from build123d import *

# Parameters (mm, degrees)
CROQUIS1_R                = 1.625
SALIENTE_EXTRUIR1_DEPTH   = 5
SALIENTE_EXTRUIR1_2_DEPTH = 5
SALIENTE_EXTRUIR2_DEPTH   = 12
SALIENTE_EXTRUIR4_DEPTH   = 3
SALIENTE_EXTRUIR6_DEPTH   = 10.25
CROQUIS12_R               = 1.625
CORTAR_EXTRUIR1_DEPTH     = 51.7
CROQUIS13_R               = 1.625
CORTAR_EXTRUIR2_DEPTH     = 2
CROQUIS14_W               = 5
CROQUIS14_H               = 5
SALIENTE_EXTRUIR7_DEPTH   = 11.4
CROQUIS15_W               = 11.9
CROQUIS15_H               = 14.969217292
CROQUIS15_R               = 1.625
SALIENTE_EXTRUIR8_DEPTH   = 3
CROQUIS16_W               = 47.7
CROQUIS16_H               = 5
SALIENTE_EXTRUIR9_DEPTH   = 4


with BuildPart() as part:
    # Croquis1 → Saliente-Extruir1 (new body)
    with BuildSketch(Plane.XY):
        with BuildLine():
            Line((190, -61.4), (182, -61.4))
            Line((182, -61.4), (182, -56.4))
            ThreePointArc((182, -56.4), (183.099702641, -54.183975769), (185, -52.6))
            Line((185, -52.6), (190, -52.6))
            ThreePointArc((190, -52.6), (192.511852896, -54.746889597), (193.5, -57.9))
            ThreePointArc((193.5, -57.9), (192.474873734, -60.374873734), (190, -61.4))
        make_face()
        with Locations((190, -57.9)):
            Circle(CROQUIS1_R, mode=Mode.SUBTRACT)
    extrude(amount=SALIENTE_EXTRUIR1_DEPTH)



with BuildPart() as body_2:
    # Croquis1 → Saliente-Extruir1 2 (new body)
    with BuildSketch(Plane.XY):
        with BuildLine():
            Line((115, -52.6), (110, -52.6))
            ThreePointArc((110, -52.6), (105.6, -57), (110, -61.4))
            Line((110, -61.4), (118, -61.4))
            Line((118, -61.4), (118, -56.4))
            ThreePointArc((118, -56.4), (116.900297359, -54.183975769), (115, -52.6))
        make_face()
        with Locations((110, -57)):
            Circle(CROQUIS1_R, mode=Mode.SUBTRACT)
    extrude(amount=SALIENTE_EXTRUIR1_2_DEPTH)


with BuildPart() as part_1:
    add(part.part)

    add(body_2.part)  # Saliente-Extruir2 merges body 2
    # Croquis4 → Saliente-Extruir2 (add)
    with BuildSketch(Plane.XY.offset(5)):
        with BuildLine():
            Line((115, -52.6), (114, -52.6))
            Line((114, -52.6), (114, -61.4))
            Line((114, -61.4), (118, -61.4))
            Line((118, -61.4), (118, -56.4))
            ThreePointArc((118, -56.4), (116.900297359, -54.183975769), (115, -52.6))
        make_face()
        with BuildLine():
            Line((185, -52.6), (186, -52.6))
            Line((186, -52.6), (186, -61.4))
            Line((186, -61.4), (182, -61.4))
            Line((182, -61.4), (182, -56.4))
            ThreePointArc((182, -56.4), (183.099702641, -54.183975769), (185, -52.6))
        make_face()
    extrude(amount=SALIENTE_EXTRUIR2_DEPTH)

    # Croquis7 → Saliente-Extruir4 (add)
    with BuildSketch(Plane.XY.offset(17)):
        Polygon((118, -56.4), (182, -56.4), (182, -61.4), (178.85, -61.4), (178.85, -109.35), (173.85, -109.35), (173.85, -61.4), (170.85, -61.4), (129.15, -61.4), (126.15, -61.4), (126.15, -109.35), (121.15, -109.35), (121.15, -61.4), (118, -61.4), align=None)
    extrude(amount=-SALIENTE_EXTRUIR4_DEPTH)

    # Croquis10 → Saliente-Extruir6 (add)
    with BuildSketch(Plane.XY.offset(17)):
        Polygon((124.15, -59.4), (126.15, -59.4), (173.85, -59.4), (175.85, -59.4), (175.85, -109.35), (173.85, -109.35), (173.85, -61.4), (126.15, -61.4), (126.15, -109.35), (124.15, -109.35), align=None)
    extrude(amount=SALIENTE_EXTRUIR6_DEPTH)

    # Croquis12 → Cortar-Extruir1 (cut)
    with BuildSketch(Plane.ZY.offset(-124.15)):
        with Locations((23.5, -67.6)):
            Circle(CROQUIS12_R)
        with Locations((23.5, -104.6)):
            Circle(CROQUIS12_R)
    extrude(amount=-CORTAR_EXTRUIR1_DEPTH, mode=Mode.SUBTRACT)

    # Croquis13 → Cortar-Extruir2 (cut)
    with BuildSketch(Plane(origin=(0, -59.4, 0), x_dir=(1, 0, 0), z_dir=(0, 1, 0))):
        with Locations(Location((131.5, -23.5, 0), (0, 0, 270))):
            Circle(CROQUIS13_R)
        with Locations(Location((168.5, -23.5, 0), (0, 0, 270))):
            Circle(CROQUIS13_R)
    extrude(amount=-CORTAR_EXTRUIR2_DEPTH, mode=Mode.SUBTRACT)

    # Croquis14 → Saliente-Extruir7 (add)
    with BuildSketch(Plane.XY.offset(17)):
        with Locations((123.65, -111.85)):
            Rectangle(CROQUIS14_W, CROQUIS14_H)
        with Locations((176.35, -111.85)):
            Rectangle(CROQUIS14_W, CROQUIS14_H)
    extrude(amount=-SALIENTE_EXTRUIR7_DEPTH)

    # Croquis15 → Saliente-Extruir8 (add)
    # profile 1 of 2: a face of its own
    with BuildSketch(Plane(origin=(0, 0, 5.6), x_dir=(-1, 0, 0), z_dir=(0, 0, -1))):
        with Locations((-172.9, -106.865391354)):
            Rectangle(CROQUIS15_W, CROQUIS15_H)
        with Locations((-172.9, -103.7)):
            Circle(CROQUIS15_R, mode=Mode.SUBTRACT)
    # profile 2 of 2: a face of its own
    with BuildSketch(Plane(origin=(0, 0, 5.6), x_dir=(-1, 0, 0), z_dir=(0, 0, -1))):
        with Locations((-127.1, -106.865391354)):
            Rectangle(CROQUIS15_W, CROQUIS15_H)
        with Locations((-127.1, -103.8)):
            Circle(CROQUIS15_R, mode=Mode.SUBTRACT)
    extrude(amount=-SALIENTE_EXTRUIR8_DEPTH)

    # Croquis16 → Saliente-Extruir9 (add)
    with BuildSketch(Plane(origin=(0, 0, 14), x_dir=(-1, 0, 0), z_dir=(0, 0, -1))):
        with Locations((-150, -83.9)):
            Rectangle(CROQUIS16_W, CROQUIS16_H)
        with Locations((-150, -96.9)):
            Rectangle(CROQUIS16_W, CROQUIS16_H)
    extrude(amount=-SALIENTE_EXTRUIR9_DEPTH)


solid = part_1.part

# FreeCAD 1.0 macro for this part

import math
import FreeCAD as App
import Part
import Sketcher
Q = App.Units.Quantity


def add_polygon(sketch, points):
    """Adds a closed chain of lines whose ends are joined by coincident constraints."""
    first, n = sketch.GeometryCount, len(points)
    for a, b in zip(points, points[1:] + points[:1]):
        sketch.addGeometry(Part.LineSegment(App.Vector(*a, 0), App.Vector(*b, 0)), False)
    for i in range(n):
        sketch.addConstraint(Sketcher.Constraint("Coincident", first + i, 2, first + (i + 1) % n, 1))

doc = App.newDocument("Part")
body = doc.addObject("PartDesign::Body", "Body")

sketch1 = body.newObject("Sketcher::SketchObject", "Sketch")
sketch1.AttachmentSupport = (doc.getObject("XY_Plane"), [""])
sketch1.MapMode = "FlatFace"
sketch1.addGeometry([
    Part.LineSegment(App.Vector(182, -61.4, 0), App.Vector(190, -61.4, 0)),
    Part.ArcOfCircle(Part.Circle(App.Vector(190, -57.9, 0), App.Vector(0, 0, 1), 3.5), math.radians(-90), math.radians(0)),
    Part.ArcOfCircle(Part.Circle(App.Vector(187.5, -58, 0), App.Vector(0, 0, 1), 6), math.radians(1), math.radians(66)),
    Part.LineSegment(App.Vector(190, -52.6, 0), App.Vector(185, -52.6, 0)),
    Part.ArcOfCircle(Part.Circle(App.Vector(187.8, -57.9, 0), App.Vector(0, 0, 1), 6), math.radians(118), math.radians(166)),
    Part.LineSegment(App.Vector(182, -56.4, 0), App.Vector(182, -61.4, 0)),
    Part.Circle(App.Vector(190, -57.9, 0), App.Vector(0, 0, 1), 1.6),
], False)
sketch1.addConstraint([
    Sketcher.Constraint("Tangent", 0, 2, 1, 1),
    Sketcher.Constraint("Coincident", 1, 2, 2, 1),
    Sketcher.Constraint("Coincident", 2, 2, 3, 1),
    Sketcher.Constraint("Coincident", 3, 2, 4, 1),
    Sketcher.Constraint("Coincident", 4, 2, 5, 1),
    Sketcher.Constraint("Coincident", 5, 2, 0, 1),
    Sketcher.Constraint("Horizontal", 0),
    Sketcher.Constraint("Horizontal", 3),
    Sketcher.Constraint("Vertical", 5),
    Sketcher.Constraint("Coincident", 6, 3, 1, 3),
    Sketcher.Constraint("Horizontal", 6, 3, 1, 2),
    Sketcher.Constraint("Vertical", 0, 2, 2, 2),
    Sketcher.Constraint("Equal", 3, 5),
    Sketcher.Constraint("Radius", 4, Q("6 mm")),
    Sketcher.Constraint("Radius", 1, Q("3.5 mm")),
    Sketcher.Constraint("Diameter", 6, Q("3.25 mm")),
    Sketcher.Constraint("DistanceX", 0, 1, 0, 2, Q("8 mm")),
    Sketcher.Constraint("DistanceX", 3, 2, 3, 1, Q("5 mm")),
    Sketcher.Constraint("DistanceX", -1, 1, 1, 3, Q("190 mm")),
    Sketcher.Constraint("DistanceY", 1, 3, -1, 1, Q("57.9 mm")),
    Sketcher.Constraint("DistanceY", 2, 2, -1, 1, Q("52.6 mm")),
    Sketcher.Constraint("Radius", 2, Q("5.979589 mm")),
])
pad1 = body.newObject("PartDesign::Pad", "Pad")
pad1.Profile = sketch1
pad1.Length = 5
body2 = doc.addObject("PartDesign::Body", "Body001")

sketch2 = body2.newObject("Sketcher::SketchObject", "Sketch001")
sketch2.AttachmentSupport = (doc.getObject("XY_Plane001"), [""])
sketch2.MapMode = "FlatFace"
sketch2.addGeometry([
    Part.LineSegment(App.Vector(115, -52.6, 0), App.Vector(110, -52.6, 0)),
    Part.ArcOfCircle(Part.Circle(App.Vector(110, -57, 0), App.Vector(0, 0, 1), 4.4), math.radians(90), math.radians(270)),
    Part.LineSegment(App.Vector(110, -61.4, 0), App.Vector(118, -61.4, 0)),
    Part.LineSegment(App.Vector(118, -61.4, 0), App.Vector(118, -56.4, 0)),
    Part.ArcOfCircle(Part.Circle(App.Vector(112.2, -57.9, 0), App.Vector(0, 0, 1), 6), math.radians(14), math.radians(62)),
    Part.Circle(App.Vector(110, -57, 0), App.Vector(0, 0, 1), 1.6),
], False)
sketch2.addConstraint([
    Sketcher.Constraint("Tangent", 0, 2, 1, 1),
    Sketcher.Constraint("Tangent", 1, 2, 2, 1),
    Sketcher.Constraint("Coincident", 2, 2, 3, 1),
    Sketcher.Constraint("Coincident", 3, 2, 4, 1),
    Sketcher.Constraint("Coincident", 4, 2, 0, 1),
    Sketcher.Constraint("Horizontal", 0),
    Sketcher.Constraint("Horizontal", 2),
    Sketcher.Constraint("Vertical", 3),
    Sketcher.Constraint("Coincident", 5, 3, 1, 3),
    Sketcher.Constraint("Equal", 0, 3),
    Sketcher.Constraint("Radius", 4, Q("6 mm")),
    Sketcher.Constraint("Radius", 1, Q("4.4 mm")),
    Sketcher.Constraint("Diameter", 5, Q("3.25 mm")),
    Sketcher.Constraint("DistanceX", 0, 2, 0, 1, Q("5 mm")),
    Sketcher.Constraint("DistanceX", 2, 1, 2, 2, Q("8 mm")),
    Sketcher.Constraint("DistanceX", -1, 1, 1, 3, Q("110 mm")),
    Sketcher.Constraint("DistanceY", 1, 3, -1, 1, Q("57 mm")),
])
pad2 = body2.newObject("PartDesign::Pad", "Pad001")
pad2.Profile = sketch2
pad2.Length = 5
body.AllowCompound = True
doc.recompute()

boolean = body.newObject("PartDesign::Boolean", "Boolean")
boolean.Type = "Fuse"
boolean.addObjects([body2])

sketch3 = body.newObject("Sketcher::SketchObject", "Sketch002")
sketch3.AttachmentSupport = (doc.getObject("XY_Plane"), [""])
sketch3.MapMode = "FlatFace"
sketch3.AttachmentOffset = App.Placement(App.Vector(0, 0, 5), App.Rotation())
sketch3.addGeometry([
    Part.LineSegment(App.Vector(115, -52.6, 0), App.Vector(114, -52.6, 0)),
    Part.LineSegment(App.Vector(114, -52.6, 0), App.Vector(114, -61.4, 0)),
    Part.LineSegment(App.Vector(114, -61.4, 0), App.Vector(118, -61.4, 0)),
    Part.LineSegment(App.Vector(118, -61.4, 0), App.Vector(118, -56.4, 0)),
    Part.ArcOfCircle(Part.Circle(App.Vector(112.2, -57.9, 0), App.Vector(0, 0, 1), 6), math.radians(14), math.radians(62)),
    Part.LineSegment(App.Vector(186, -52.6, 0), App.Vector(185, -52.6, 0)),
    Part.ArcOfCircle(Part.Circle(App.Vector(187.8, -57.9, 0), App.Vector(0, 0, 1), 6), math.radians(118), math.radians(166)),
    Part.LineSegment(App.Vector(182, -56.4, 0), App.Vector(182, -61.4, 0)),
    Part.LineSegment(App.Vector(182, -61.4, 0), App.Vector(186, -61.4, 0)),
    Part.LineSegment(App.Vector(186, -61.4, 0), App.Vector(186, -52.6, 0)),
], False)
sketch3.addConstraint([
    Sketcher.Constraint("Coincident", 0, 2, 1, 1),
    Sketcher.Constraint("Coincident", 1, 2, 2, 1),
    Sketcher.Constraint("Coincident", 2, 2, 3, 1),
    Sketcher.Constraint("Coincident", 3, 2, 4, 1),
    Sketcher.Constraint("Coincident", 4, 2, 0, 1),
    Sketcher.Constraint("Coincident", 5, 2, 6, 1),
    Sketcher.Constraint("Coincident", 6, 2, 7, 1),
    Sketcher.Constraint("Coincident", 7, 2, 8, 1),
    Sketcher.Constraint("Coincident", 8, 2, 9, 1),
    Sketcher.Constraint("Coincident", 9, 2, 5, 1),
    Sketcher.Constraint("Horizontal", 0),
    Sketcher.Constraint("Vertical", 1),
    Sketcher.Constraint("Horizontal", 2),
    Sketcher.Constraint("Vertical", 3),
    Sketcher.Constraint("Horizontal", 5),
    Sketcher.Constraint("Vertical", 7),
    Sketcher.Constraint("Horizontal", 8),
    Sketcher.Constraint("Vertical", 9),
    Sketcher.Constraint("Equal", 4, 6),
    Sketcher.Constraint("Horizontal", 4, 3, 6, 3),
    Sketcher.Constraint("Horizontal", 4, 2, 5, 2),
    Sketcher.Constraint("Horizontal", 3, 2, 6, 2),
    Sketcher.Constraint("Horizontal", 2, 2, 7, 2),
    Sketcher.Constraint("Equal", 0, 5),
    Sketcher.Constraint("Radius", 4, Q("6 mm")),
    Sketcher.Constraint("DistanceX", 0, 2, 0, 1, Q("1 mm")),
    Sketcher.Constraint("DistanceX", 2, 1, 2, 2, Q("4 mm")),
    Sketcher.Constraint("DistanceY", 3, 1, 3, 2, Q("5 mm")),
    Sketcher.Constraint("DistanceY", 1, 2, 1, 1, Q("8.8 mm")),
    Sketcher.Constraint("DistanceX", -1, 1, 0, 2, Q("114 mm")),
    Sketcher.Constraint("DistanceX", -1, 1, 5, 2, Q("185 mm")),
    Sketcher.Constraint("DistanceY", 0, 2, -1, 1, Q("52.6 mm")),
])
pad3 = body.newObject("PartDesign::Pad", "Pad002")
pad3.Profile = sketch3
pad3.Length = 12

sketch4 = body.newObject("Sketcher::SketchObject", "Sketch003")
sketch4.AttachmentSupport = (doc.getObject("XY_Plane"), [""])
sketch4.MapMode = "FlatFace"
sketch4.AttachmentOffset = App.Placement(App.Vector(0, 0, 17), App.Rotation())
add_polygon(sketch4, [(182, -56.4), (118, -56.4), (118, -61.4), (121.2, -61.4), (121.2, -109.3), (126.2, -109.3), (126.2, -61.4), (173.8, -61.4), (173.8, -109.3), (178.8, -109.3), (178.8, -61.4), (182, -61.4)])
sketch4.addConstraint([
    Sketcher.Constraint("Horizontal", 0),
    Sketcher.Constraint("Vertical", 1),
    Sketcher.Constraint("Horizontal", 2),
    Sketcher.Constraint("Vertical", 3),
    Sketcher.Constraint("Horizontal", 4),
    Sketcher.Constraint("Vertical", 5),
    Sketcher.Constraint("Horizontal", 6),
    Sketcher.Constraint("Vertical", 7),
    Sketcher.Constraint("Horizontal", 8),
    Sketcher.Constraint("Vertical", 9),
    Sketcher.Constraint("Horizontal", 10),
    Sketcher.Constraint("Vertical", 11),
    Sketcher.Constraint("Horizontal", 2, 2, 5, 2),
    Sketcher.Constraint("Horizontal", 4, 2, 7, 2),
    Sketcher.Constraint("Horizontal", 6, 2, 9, 2),
    Sketcher.Constraint("Equal", 4, 8),
    Sketcher.Constraint("Equal", 2, 10),
    Sketcher.Constraint("Equal", 8, 1),
    Sketcher.Constraint("DistanceX", 0, 2, 0, 1, Q("64 mm")),
    Sketcher.Constraint("DistanceX", 4, 1, 4, 2, Q("5 mm")),
    Sketcher.Constraint("DistanceX", 6, 1, 6, 2, Q("47.7 mm")),
    Sketcher.Constraint("DistanceX", -1, 1, 0, 2, Q("118 mm")),
    Sketcher.Constraint("DistanceY", 3, 2, 3, 1, Q("47.95 mm")),
    Sketcher.Constraint("DistanceY", 0, 2, -1, 1, Q("56.4 mm")),
])
pad4 = body.newObject("PartDesign::Pad", "Pad003")
pad4.Profile = sketch4
pad4.Length = 3
pad4.Reversed = True

sketch5 = body.newObject("Sketcher::SketchObject", "Sketch004")
sketch5.AttachmentSupport = (doc.getObject("XY_Plane"), [""])
sketch5.MapMode = "FlatFace"
sketch5.AttachmentOffset = App.Placement(App.Vector(0, 0, 17), App.Rotation())
add_polygon(sketch5, [(175.8, -59.4), (124.2, -59.4), (124.2, -109.3), (126.2, -109.3), (126.2, -61.4), (173.8, -61.4), (173.8, -109.3), (175.8, -109.3)])
sketch5.addConstraint([
    Sketcher.Constraint("Horizontal", 0),
    Sketcher.Constraint("Vertical", 1),
    Sketcher.Constraint("Horizontal", 2),
    Sketcher.Constraint("Vertical", 3),
    Sketcher.Constraint("Horizontal", 4),
    Sketcher.Constraint("Vertical", 5),
    Sketcher.Constraint("Horizontal", 6),
    Sketcher.Constraint("Vertical", 7),
    Sketcher.Constraint("Horizontal", 2, 2, 5, 2),
    Sketcher.Constraint("Equal", 2, 6),
    Sketcher.Constraint("DistanceX", 2, 1, 2, 2, Q("2 mm")),
    Sketcher.Constraint("DistanceX", 0, 2, 0, 1, Q("51.7 mm")),
    Sketcher.Constraint("DistanceY", 3, 2, 0, 2, Q("2 mm")),
    Sketcher.Constraint("DistanceY", 1, 2, 1, 1, Q("49.95 mm")),
    Sketcher.Constraint("DistanceY", 0, 2, -1, 1, Q("59.4 mm")),
    Sketcher.Constraint("DistanceX", -1, 1, 0, 2, Q("124.15 mm")),
])
pad5 = body.newObject("PartDesign::Pad", "Pad004")
pad5.Profile = sketch5
pad5.Length = 10.25

sketch6 = body.newObject("Sketcher::SketchObject", "Sketch005")
sketch6.AttachmentSupport = (doc.getObject("YZ_Plane"), [""])
sketch6.MapMode = "FlatFace"
sketch6.AttachmentOffset = App.Placement(App.Vector(0, 0, 124.15), App.Rotation())
sketch6.addGeometry([
    Part.Circle(App.Vector(-67.6, 23.5, 0), App.Vector(0, 0, 1), 1.6),
    Part.Circle(App.Vector(-104.6, 23.5, 0), App.Vector(0, 0, 1), 1.6),
], False)
sketch6.addConstraint([
    Sketcher.Constraint("Equal", 0, 1),
    Sketcher.Constraint("Horizontal", 0, 3, 1, 3),
    Sketcher.Constraint("Diameter", 0, Q("3.25 mm")),
    Sketcher.Constraint("DistanceX", 1, 3, 0, 3, Q("37 mm")),
    Sketcher.Constraint("DistanceX", 0, 3, -1, 1, Q("67.6 mm")),
    Sketcher.Constraint("DistanceY", -1, 1, 0, 3, Q("23.5 mm")),
])
pocket1 = body.newObject("PartDesign::Pocket", "Pocket")
pocket1.Profile = sketch6
pocket1.Length = 51.7
pocket1.Reversed = True

sketch7 = body.newObject("Sketcher::SketchObject", "Sketch006")
sketch7.AttachmentSupport = (doc.getObject("XZ_Plane"), [""])
sketch7.MapMode = "FlatFace"
sketch7.AttachmentOffset = App.Placement(App.Vector(0, 0, 59.4), App.Rotation())
sketch7.addGeometry([
    Part.Circle(App.Vector(131.5, 23.5, 0), App.Vector(0, 0, 1), 1.6),
    Part.Circle(App.Vector(168.5, 23.5, 0), App.Vector(0, 0, 1), 1.6),
], False)
sketch7.addConstraint([
    Sketcher.Constraint("Equal", 0, 1),
    Sketcher.Constraint("Horizontal", 0, 3, 1, 3),
    Sketcher.Constraint("Diameter", 0, Q("3.25 mm")),
    Sketcher.Constraint("DistanceX", 0, 3, 1, 3, Q("37 mm")),
    Sketcher.Constraint("DistanceX", -1, 1, 0, 3, Q("131.5 mm")),
    Sketcher.Constraint("DistanceY", -1, 1, 0, 3, Q("23.5 mm")),
])
pocket2 = body.newObject("PartDesign::Pocket", "Pocket001")
pocket2.Profile = sketch7
pocket2.Length = 2
pocket2.Reversed = True

sketch8 = body.newObject("Sketcher::SketchObject", "Sketch007")
sketch8.AttachmentSupport = (doc.getObject("XY_Plane"), [""])
sketch8.MapMode = "FlatFace"
sketch8.AttachmentOffset = App.Placement(App.Vector(0, 0, 17), App.Rotation())
add_polygon(sketch8, [(121, -109), (121, -114), (126, -114), (126, -109)])
add_polygon(sketch8, [(174, -109), (174, -114), (179, -114), (179, -109)])
sketch8.addConstraint([
    Sketcher.Constraint("Vertical", 0),
    Sketcher.Constraint("Horizontal", 1),
    Sketcher.Constraint("Vertical", 2),
    Sketcher.Constraint("Horizontal", 3),
    Sketcher.Constraint("Vertical", 4),
    Sketcher.Constraint("Horizontal", 5),
    Sketcher.Constraint("Vertical", 6),
    Sketcher.Constraint("Horizontal", 7),
    Sketcher.Constraint("Horizontal", 1, 2, 4, 2),
    Sketcher.Constraint("Horizontal", 3, 2, 6, 2),
    Sketcher.Constraint("Equal", 3, 5),
    Sketcher.Constraint("Equal", 7, 0),
    Sketcher.Constraint("DistanceX", 1, 1, 1, 2, Q("5 mm")),
    Sketcher.Constraint("DistanceX", 1, 2, 4, 2, Q("47.7 mm")),
    Sketcher.Constraint("DistanceX", -1, 1, 0, 2, Q("121.15 mm")),
    Sketcher.Constraint("DistanceY", 0, 2, -1, 1, Q("114.35 mm")),
])
pad6 = body.newObject("PartDesign::Pad", "Pad005")
pad6.Profile = sketch8
pad6.Length = 11.4
pad6.Reversed = True

sketch9 = body.newObject("Sketcher::SketchObject", "Sketch008")
sketch9.AttachmentSupport = (doc.getObject("XY_Plane"), [""])
sketch9.MapMode = "FlatFace"
sketch9.AttachmentOffset = App.Placement(App.Vector(0, 0, 5.6), App.Rotation())
add_polygon(sketch9, [(178.8, -99.4), (178.8, -114.3), (166.9, -114.3), (166.9, -99.4)])
sketch9.addGeometry(Part.Circle(App.Vector(172.9, -103.7, 0), App.Vector(0, 0, 1), 1.6), False)
add_polygon(sketch9, [(133.1, -99.4), (133.1, -114.3), (121.2, -114.3), (121.2, -99.4)])
sketch9.addGeometry(Part.Circle(App.Vector(127.1, -103.8, 0), App.Vector(0, 0, 1), 1.6), False)
sketch9.addConstraint([
    Sketcher.Constraint("Vertical", 0),
    Sketcher.Constraint("Horizontal", 1),
    Sketcher.Constraint("Vertical", 2),
    Sketcher.Constraint("Horizontal", 3),
    Sketcher.Constraint("Vertical", 5),
    Sketcher.Constraint("Horizontal", 6),
    Sketcher.Constraint("Vertical", 7),
    Sketcher.Constraint("Horizontal", 8),
    Sketcher.Constraint("Equal", 4, 9),
    Sketcher.Constraint("Horizontal", 1, 2, 5, 2),
    Sketcher.Constraint("Horizontal", 3, 2, 7, 2),
    Sketcher.Constraint("Equal", 3, 6),
    Sketcher.Constraint("Diameter", 4, Q("3.25 mm")),
    Sketcher.Constraint("DistanceX", 1, 2, 1, 1, Q("11.9 mm")),
    Sketcher.Constraint("DistanceX", -1, 1, 4, 3, Q("172.9 mm")),
    Sketcher.Constraint("DistanceY", 4, 3, -1, 1, Q("103.7 mm")),
    Sketcher.Constraint("DistanceX", -1, 1, 9, 3, Q("127.1 mm")),
    Sketcher.Constraint("DistanceY", 9, 3, -1, 1, Q("103.8 mm")),
    Sketcher.Constraint("DistanceX", 5, 2, 1, 2, Q("33.9 mm")),
    Sketcher.Constraint("DistanceX", -1, 1, 0, 2, Q("178.85 mm")),
    Sketcher.Constraint("DistanceY", 0, 2, -1, 1, Q("114.35 mm")),
    Sketcher.Constraint("DistanceY", 0, 2, 0, 1, Q("14.969217 mm")),
])
pad7 = body.newObject("PartDesign::Pad", "Pad006")
pad7.Profile = sketch9
pad7.Length = 3

sketch10 = body.newObject("Sketcher::SketchObject", "Sketch009")
sketch10.AttachmentSupport = (doc.getObject("XY_Plane"), [""])
sketch10.MapMode = "FlatFace"
sketch10.AttachmentOffset = App.Placement(App.Vector(0, 0, 14), App.Rotation())
add_polygon(sketch10, [(174, -81), (174, -86), (126, -86), (126, -81)])
add_polygon(sketch10, [(174, -94), (174, -99), (126, -99), (126, -94)])
sketch10.addConstraint([
    Sketcher.Constraint("Vertical", 0),
    Sketcher.Constraint("Horizontal", 1),
    Sketcher.Constraint("Vertical", 2),
    Sketcher.Constraint("Horizontal", 3),
    Sketcher.Constraint("Vertical", 4),
    Sketcher.Constraint("Horizontal", 5),
    Sketcher.Constraint("Vertical", 6),
    Sketcher.Constraint("Horizontal", 7),
    Sketcher.Constraint("Vertical", 3, 2, 4, 2),
    Sketcher.Constraint("Vertical", 2, 2, 5, 2),
    Sketcher.Constraint("Equal", 2, 4),
    Sketcher.Constraint("DistanceY", 0, 2, 0, 1, Q("5 mm")),
    Sketcher.Constraint("DistanceX", 1, 2, 1, 1, Q("47.7 mm")),
    Sketcher.Constraint("DistanceY", 4, 2, 0, 2, Q("13 mm")),
    Sketcher.Constraint("DistanceY", 0, 2, -1, 1, Q("86.4 mm")),
    Sketcher.Constraint("DistanceX", -1, 1, 0, 2, Q("173.85 mm")),
])
pad8 = body.newObject("PartDesign::Pad", "Pad007")
pad8.Profile = sketch10
pad8.Length = 4

doc.recompute()
